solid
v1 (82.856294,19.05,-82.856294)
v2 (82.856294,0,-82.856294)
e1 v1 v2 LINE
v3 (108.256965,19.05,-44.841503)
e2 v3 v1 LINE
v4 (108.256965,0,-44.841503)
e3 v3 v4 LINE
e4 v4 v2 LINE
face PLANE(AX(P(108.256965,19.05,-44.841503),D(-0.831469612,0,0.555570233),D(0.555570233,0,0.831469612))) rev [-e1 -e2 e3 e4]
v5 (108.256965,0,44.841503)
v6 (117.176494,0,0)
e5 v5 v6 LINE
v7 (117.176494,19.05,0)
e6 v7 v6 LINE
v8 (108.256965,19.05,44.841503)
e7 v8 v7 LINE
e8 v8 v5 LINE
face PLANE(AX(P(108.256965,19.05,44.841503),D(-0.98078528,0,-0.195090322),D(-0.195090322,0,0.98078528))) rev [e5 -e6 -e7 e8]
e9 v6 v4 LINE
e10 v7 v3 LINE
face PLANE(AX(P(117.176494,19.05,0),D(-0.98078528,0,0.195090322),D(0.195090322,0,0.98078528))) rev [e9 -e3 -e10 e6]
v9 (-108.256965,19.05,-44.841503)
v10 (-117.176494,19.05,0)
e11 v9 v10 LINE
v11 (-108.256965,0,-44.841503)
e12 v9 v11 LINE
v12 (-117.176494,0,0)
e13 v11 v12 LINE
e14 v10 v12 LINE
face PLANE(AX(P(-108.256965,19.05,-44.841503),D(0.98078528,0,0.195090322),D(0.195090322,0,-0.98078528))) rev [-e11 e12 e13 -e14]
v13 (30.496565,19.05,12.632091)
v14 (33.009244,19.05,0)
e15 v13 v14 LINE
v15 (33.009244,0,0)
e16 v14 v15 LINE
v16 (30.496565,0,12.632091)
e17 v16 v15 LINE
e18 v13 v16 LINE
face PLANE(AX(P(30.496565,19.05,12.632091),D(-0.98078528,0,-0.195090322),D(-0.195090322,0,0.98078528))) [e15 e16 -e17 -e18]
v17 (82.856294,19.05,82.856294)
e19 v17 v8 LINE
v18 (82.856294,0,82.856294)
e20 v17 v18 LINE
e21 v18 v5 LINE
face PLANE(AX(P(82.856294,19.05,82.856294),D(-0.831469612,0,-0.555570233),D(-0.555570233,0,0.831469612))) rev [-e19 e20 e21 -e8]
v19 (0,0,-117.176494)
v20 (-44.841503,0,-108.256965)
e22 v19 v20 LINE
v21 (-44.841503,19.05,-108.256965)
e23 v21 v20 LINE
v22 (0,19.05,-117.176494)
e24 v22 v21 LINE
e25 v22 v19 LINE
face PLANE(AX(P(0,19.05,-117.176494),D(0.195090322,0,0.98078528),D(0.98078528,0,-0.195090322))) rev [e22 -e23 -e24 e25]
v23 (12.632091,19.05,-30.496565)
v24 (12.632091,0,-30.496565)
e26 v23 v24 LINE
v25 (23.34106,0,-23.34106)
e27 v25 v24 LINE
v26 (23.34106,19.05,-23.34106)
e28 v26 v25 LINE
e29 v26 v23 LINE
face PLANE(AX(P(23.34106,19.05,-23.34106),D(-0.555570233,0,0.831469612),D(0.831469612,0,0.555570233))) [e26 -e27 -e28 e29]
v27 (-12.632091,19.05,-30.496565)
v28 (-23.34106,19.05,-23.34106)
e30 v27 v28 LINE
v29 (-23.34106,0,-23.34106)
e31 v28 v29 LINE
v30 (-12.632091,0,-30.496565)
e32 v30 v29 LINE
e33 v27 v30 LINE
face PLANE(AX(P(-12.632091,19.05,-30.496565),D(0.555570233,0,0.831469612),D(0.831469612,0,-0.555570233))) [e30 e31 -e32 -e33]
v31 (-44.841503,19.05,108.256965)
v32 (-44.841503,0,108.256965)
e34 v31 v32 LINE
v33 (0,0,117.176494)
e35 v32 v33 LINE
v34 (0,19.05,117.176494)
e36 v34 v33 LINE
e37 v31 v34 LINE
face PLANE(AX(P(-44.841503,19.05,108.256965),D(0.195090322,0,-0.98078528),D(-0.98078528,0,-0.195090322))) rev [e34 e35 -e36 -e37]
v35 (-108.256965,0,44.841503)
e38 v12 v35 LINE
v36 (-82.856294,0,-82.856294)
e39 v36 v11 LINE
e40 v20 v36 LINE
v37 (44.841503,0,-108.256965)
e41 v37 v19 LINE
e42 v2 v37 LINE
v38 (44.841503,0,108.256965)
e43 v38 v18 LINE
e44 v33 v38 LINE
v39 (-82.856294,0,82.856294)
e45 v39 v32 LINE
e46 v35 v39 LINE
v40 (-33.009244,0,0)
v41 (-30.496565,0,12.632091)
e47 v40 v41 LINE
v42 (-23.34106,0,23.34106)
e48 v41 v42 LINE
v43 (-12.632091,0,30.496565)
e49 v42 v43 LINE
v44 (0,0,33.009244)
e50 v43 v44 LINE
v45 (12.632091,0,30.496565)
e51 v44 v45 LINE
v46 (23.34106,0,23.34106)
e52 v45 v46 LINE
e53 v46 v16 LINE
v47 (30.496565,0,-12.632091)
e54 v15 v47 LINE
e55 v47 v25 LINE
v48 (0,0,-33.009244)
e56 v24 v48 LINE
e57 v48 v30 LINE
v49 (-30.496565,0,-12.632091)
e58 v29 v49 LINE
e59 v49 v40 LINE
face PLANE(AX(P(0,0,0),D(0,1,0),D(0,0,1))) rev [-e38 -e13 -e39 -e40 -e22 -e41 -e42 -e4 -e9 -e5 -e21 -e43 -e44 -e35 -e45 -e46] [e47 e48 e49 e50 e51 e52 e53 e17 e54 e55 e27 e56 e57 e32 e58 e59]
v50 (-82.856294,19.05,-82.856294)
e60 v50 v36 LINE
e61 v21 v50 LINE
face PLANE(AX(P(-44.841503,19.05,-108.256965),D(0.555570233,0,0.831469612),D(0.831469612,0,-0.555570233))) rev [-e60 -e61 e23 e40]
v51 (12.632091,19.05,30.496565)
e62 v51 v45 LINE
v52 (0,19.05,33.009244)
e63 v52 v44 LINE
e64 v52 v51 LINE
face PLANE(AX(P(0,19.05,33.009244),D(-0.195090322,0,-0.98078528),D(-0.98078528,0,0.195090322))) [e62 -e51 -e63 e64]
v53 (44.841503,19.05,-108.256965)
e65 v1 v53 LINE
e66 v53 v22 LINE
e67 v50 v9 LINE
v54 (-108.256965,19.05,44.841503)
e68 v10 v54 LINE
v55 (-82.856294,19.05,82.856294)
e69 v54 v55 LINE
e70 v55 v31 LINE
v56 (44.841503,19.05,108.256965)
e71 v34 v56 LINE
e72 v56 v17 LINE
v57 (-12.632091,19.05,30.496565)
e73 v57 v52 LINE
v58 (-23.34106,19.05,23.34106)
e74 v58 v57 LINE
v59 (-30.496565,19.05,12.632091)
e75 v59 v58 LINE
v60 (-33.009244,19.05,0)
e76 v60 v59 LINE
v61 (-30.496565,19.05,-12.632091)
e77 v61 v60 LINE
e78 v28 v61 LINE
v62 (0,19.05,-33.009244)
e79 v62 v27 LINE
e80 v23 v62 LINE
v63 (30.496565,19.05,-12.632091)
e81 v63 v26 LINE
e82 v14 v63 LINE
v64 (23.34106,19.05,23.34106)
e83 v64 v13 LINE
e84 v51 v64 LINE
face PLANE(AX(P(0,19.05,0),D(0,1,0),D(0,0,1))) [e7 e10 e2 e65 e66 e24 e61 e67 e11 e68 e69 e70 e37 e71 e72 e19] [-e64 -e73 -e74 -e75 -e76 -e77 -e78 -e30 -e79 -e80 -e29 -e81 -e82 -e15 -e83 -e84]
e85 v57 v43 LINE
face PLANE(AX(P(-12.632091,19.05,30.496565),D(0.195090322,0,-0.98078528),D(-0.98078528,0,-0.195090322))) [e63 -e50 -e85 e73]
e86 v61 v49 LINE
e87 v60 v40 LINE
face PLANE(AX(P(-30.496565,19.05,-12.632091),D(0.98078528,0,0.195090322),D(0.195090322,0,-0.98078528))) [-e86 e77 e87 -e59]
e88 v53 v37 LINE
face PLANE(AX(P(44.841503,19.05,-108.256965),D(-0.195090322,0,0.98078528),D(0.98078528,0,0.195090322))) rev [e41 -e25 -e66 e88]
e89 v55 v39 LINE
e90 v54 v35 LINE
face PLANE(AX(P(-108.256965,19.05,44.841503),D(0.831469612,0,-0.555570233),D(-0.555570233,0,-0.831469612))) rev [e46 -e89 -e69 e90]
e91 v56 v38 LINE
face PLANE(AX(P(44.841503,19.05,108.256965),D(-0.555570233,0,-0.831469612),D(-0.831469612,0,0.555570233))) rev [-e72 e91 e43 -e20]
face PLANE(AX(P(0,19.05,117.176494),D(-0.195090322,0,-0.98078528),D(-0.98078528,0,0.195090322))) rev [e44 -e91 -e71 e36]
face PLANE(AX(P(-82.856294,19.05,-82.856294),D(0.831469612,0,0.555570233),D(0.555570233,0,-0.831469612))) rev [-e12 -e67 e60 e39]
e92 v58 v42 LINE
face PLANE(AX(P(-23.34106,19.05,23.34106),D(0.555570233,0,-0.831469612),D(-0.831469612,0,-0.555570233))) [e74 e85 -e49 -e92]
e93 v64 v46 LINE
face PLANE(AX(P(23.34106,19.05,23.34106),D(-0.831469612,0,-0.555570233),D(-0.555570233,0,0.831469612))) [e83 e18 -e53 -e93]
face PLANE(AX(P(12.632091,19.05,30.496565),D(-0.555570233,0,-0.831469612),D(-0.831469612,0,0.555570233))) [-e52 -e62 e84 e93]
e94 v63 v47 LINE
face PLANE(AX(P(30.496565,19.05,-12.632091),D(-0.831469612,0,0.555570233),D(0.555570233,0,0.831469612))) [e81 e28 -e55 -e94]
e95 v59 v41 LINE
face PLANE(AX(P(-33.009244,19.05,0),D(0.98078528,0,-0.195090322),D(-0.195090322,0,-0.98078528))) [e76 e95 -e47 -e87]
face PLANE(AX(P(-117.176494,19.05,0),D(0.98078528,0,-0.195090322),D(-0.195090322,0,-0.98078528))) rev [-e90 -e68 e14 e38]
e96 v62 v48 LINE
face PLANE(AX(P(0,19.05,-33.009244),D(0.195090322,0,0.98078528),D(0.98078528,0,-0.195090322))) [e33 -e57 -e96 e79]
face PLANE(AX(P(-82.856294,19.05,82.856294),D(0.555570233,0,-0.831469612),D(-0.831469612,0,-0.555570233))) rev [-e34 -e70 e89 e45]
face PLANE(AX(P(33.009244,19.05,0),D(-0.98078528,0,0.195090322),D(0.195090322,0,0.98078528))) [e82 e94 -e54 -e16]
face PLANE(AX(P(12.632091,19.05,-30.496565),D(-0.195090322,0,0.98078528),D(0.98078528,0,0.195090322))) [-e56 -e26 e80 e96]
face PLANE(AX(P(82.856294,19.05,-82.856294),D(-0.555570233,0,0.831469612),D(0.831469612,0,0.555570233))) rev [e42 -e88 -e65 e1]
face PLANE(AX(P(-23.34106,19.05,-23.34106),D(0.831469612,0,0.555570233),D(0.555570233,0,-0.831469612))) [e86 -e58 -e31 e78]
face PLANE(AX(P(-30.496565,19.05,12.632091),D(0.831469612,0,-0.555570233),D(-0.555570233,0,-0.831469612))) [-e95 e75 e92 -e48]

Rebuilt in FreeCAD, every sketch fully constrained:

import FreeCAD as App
import Part
import Sketcher

V = App.Vector
Q = App.Units.Quantity


def add_polygon(sketch, points):
    """Adds a closed chain of lines whose ends are joined by coincident constraints."""
    first, n = sketch.GeometryCount, len(points)
    for a, b in zip(points, points[1:] + points[:1]):
        sketch.addGeometry(Part.LineSegment(App.Vector(*a, 0), App.Vector(*b, 0)), False)
    for i in range(n):
        sketch.addConstraint(Sketcher.Constraint("Coincident", first + i, 2, first + (i + 1) % n, 1))

doc = App.newDocument("Part")
body = doc.addObject("PartDesign::Body", "Body")

# Sketch on XZ plane
sketch1 = body.newObject("Sketcher::SketchObject", "Sketch")
sketch1.AttachmentSupport = (doc.getObject("XZ_Plane"), [""])
sketch1.MapMode = "FlatFace"
add_polygon(sketch1, [(117, 0), (108, -45), (83, -83), (45, -108), (0, -117), (-45, -108), (-83, -83), (-108, -45), (-117, 0), (-108, 45), (-83, 83), (-45, 108), (0, 117), (45, 108), (83, 83), (108, 45)])  # lines 0-15
add_polygon(sketch1, [(30, -13), (33, 0), (30, 13), (23, 23), (13, 30), (0, 33), (-13, 30), (-23, 23), (-30, 13), (-33, 0), (-30, -13), (-23, -23), (-13, -30), (0, -33), (13, -30), (23, -23)])  # lines 16-31
sketch1.addConstraint(Sketcher.Constraint("Symmetric", 0, 2, 8, 2, -1, 1))
sketch1.addConstraint(Sketcher.Constraint("Symmetric", 1, 2, 9, 2, -1, 1))
sketch1.addConstraint(Sketcher.Constraint("Symmetric", 2, 2, 10, 2, -1, 1))
sketch1.addConstraint(Sketcher.Constraint("Symmetric", 3, 2, 11, 2, -1, 1))
sketch1.addConstraint(Sketcher.Constraint("Symmetric", 4, 2, 12, 2, -1, 1))
sketch1.addConstraint(Sketcher.Constraint("Symmetric", 5, 2, 13, 2, -1, 1))
sketch1.addConstraint(Sketcher.Constraint("Symmetric", 6, 2, 14, 2, -1, 1))
sketch1.addConstraint(Sketcher.Constraint("Symmetric", 7, 2, 15, 2, -1, 1))
sketch1.addConstraint(Sketcher.Constraint("Symmetric", 16, 2, 24, 2, -1, 1))
sketch1.addConstraint(Sketcher.Constraint("Symmetric", 17, 2, 25, 2, -1, 1))
sketch1.addConstraint(Sketcher.Constraint("Symmetric", 18, 2, 26, 2, -1, 1))
sketch1.addConstraint(Sketcher.Constraint("Symmetric", 19, 2, 27, 2, -1, 1))
sketch1.addConstraint(Sketcher.Constraint("Symmetric", 20, 2, 28, 2, -1, 1))
sketch1.addConstraint(Sketcher.Constraint("Symmetric", 21, 2, 29, 2, -1, 1))
sketch1.addConstraint(Sketcher.Constraint("Symmetric", 22, 2, 30, 2, -1, 1))
sketch1.addConstraint(Sketcher.Constraint("Symmetric", 23, 2, 31, 2, -1, 1))
sketch1.addConstraint(Sketcher.Constraint("Symmetric", 2, 2, 4, 2, -2))
sketch1.addConstraint(Sketcher.Constraint("Symmetric", 1, 2, 5, 2, -2))
sketch1.addConstraint(Sketcher.Constraint("Symmetric", 0, 2, 6, 2, -2))
sketch1.addConstraint(Sketcher.Constraint("Symmetric", 19, 2, 21, 2, -2))
sketch1.addConstraint(Sketcher.Constraint("Symmetric", 18, 2, 22, 2, -2))
sketch1.addConstraint(Sketcher.Constraint("Symmetric", 17, 2, 23, 2, -2))
sketch1.addConstraint(Sketcher.Constraint("PointOnObject", 3, 2, -2))
sketch1.addConstraint(Sketcher.Constraint("PointOnObject", 7, 2, -1))
sketch1.addConstraint(Sketcher.Constraint("PointOnObject", 16, 2, -1))
sketch1.addConstraint(Sketcher.Constraint("PointOnObject", 20, 2, -2))
sketch1.addConstraint(Sketcher.Constraint("Perpendicular", 0, 4))
sketch1.addConstraint(Sketcher.Constraint("Perpendicular", 1, 5))
sketch1.addConstraint(Sketcher.Constraint("Perpendicular", 12, 16))
sketch1.addConstraint(Sketcher.Constraint("Parallel", 14, 18))
sketch1.addConstraint(Sketcher.Constraint("Parallel", 13, 19))
sketch1.addConstraint(Sketcher.Constraint("Perpendicular", 16, 20))
sketch1.addConstraint(Sketcher.Constraint("Equal", 0, 1))
sketch1.addConstraint(Sketcher.Constraint("Equal", 1, 2))
sketch1.addConstraint(Sketcher.Constraint("Equal", 2, 3))
sketch1.addConstraint(Sketcher.Constraint("Equal", 17, 18))
sketch1.addConstraint(Sketcher.Constraint("Equal", 18, 19))
sketch1.addConstraint(Sketcher.Constraint("Equal", 19, 20))
sketch1.addConstraint(Sketcher.Constraint("Distance", 0, Q("1.8 in")))
sketch1.addConstraint(Sketcher.Constraint("Angle", 0, Q("-101.25 deg")))
sketch1.addConstraint(Sketcher.Constraint("Angle", 1, Q("-123.75 deg")))
sketch1.addConstraint(Sketcher.Constraint("DistanceX", 17, 2, 14, 2, 77.7604))
pad1 = body.newObject("PartDesign::Pad", "Pad")
pad1.Profile = sketch1
pad1.Length = Q("0.75 in")
pad1.Reversed = True

doc.recompute()
